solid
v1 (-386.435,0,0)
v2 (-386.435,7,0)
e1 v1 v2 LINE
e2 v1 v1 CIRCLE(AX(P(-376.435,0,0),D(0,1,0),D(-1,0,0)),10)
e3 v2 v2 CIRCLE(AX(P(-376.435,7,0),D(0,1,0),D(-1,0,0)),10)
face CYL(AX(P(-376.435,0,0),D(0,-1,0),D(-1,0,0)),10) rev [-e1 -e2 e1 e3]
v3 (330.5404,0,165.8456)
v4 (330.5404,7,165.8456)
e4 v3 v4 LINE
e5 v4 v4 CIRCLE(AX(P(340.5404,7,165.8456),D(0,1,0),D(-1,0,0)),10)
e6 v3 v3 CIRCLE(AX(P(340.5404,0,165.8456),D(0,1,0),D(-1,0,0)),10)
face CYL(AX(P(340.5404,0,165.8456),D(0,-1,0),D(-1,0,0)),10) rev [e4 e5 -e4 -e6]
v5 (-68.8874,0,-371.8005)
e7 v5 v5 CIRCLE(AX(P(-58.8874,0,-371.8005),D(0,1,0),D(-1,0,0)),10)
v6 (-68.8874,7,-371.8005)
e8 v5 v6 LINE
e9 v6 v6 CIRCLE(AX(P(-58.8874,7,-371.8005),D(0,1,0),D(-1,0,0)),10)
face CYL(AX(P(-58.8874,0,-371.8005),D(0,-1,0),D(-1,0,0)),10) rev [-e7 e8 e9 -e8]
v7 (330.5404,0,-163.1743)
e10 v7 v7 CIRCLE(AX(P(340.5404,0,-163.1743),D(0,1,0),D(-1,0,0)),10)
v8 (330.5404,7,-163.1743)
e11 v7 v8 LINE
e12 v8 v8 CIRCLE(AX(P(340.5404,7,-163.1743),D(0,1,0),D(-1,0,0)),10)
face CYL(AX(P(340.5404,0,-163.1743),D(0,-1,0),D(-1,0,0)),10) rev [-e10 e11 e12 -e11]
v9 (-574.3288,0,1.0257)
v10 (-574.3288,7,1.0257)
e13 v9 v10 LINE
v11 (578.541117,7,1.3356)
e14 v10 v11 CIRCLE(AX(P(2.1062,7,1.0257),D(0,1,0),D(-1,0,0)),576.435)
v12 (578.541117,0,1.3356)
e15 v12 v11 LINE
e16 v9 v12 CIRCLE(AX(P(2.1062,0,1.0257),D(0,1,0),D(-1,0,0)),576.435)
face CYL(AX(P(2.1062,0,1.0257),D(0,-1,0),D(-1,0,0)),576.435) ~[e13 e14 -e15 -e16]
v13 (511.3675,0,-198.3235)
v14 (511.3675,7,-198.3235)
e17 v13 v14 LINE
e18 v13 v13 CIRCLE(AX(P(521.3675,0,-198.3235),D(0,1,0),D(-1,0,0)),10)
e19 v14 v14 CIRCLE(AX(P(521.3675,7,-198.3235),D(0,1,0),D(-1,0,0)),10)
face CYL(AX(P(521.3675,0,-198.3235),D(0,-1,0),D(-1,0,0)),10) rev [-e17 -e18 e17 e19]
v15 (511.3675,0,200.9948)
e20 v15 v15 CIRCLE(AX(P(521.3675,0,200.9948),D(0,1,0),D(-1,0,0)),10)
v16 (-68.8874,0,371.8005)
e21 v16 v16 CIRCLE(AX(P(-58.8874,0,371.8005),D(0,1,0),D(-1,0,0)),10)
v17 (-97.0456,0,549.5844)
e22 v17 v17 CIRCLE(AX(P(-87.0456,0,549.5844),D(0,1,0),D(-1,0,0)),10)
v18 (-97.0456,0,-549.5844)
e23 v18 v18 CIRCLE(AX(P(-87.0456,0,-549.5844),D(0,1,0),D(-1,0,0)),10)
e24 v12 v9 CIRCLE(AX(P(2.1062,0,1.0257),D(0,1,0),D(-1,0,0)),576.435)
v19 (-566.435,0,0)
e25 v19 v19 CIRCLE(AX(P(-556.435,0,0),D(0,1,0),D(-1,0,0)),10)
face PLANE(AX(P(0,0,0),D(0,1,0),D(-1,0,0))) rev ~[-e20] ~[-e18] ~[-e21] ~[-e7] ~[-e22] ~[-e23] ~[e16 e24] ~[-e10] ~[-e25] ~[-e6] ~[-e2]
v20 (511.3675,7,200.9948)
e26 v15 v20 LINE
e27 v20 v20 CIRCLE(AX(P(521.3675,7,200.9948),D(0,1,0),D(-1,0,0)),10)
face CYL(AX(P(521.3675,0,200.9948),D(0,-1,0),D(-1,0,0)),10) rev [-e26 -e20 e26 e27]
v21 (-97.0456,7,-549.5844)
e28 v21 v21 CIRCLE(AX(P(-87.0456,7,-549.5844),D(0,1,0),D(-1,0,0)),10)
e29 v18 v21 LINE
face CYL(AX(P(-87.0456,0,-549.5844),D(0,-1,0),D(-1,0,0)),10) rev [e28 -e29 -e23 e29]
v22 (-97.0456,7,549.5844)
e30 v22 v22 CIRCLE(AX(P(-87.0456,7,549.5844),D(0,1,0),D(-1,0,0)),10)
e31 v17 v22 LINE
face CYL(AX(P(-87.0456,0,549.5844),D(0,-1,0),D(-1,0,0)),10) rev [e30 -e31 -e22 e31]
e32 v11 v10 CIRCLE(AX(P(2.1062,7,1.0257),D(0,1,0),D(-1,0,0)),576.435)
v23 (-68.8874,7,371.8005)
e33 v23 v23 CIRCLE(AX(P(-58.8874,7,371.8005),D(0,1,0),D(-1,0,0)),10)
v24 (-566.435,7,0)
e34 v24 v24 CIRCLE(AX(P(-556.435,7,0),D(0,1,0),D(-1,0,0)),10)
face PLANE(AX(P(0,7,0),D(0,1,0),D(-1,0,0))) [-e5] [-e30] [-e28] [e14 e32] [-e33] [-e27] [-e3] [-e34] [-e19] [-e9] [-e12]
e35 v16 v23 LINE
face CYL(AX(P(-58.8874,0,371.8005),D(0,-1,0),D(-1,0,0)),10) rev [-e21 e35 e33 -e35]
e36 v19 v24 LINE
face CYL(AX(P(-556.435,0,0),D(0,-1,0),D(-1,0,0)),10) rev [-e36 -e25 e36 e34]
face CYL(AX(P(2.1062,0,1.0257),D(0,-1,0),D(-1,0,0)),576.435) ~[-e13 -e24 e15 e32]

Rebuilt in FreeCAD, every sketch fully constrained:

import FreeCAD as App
import Part
import Sketcher

doc = App.newDocument("Part")
body = doc.addObject("PartDesign::Body", "Body")

sketch1 = body.newObject("Sketcher::SketchObject", "Sketch")
sketch1.AttachmentSupport = (doc.getObject("XZ_Plane"), [""])
sketch1.MapMode = "FlatFace"
sketch1.addGeometry(Part.Circle(App.Vector(2, 1, 0), App.Vector(0, 0, 1), 576), False)
sketch1.addGeometry(Part.Circle(App.Vector(521, -198, 0), App.Vector(0, 0, 1), 10), False)
sketch1.addGeometry(Part.Circle(App.Vector(341, -163, 0), App.Vector(0, 0, 1), 10), False)
sketch1.addGeometry(Part.Circle(App.Vector(-87, -550, 0), App.Vector(0, 0, 1), 10), False)
sketch1.addGeometry(Part.Circle(App.Vector(-59, -372, 0), App.Vector(0, 0, 1), 10), False)
sketch1.addGeometry(Part.Circle(App.Vector(-376, 0, 0), App.Vector(0, 0, 1), 10), False)
sketch1.addGeometry(Part.Circle(App.Vector(-556, 0, 0), App.Vector(0, 0, 1), 10), False)
sketch1.addGeometry(Part.Circle(App.Vector(521, 201, 0), App.Vector(0, 0, 1), 10), False)
sketch1.addGeometry(Part.Circle(App.Vector(341, 166, 0), App.Vector(0, 0, 1), 10), False)
sketch1.addGeometry(Part.Circle(App.Vector(-59, 372, 0), App.Vector(0, 0, 1), 10), False)
sketch1.addGeometry(Part.Circle(App.Vector(-87, 550, 0), App.Vector(0, 0, 1), 10), False)
sketch1.addConstraint(Sketcher.Constraint("Equal", 1, 2))
sketch1.addConstraint(Sketcher.Constraint("Equal", 2, 3))
sketch1.addConstraint(Sketcher.Constraint("Equal", 3, 4))
sketch1.addConstraint(Sketcher.Constraint("Equal", 4, 5))
sketch1.addConstraint(Sketcher.Constraint("Equal", 5, 6))
sketch1.addConstraint(Sketcher.Constraint("Equal", 6, 7))
sketch1.addConstraint(Sketcher.Constraint("Equal", 7, 8))
sketch1.addConstraint(Sketcher.Constraint("Equal", 8, 9))
sketch1.addConstraint(Sketcher.Constraint("Equal", 9, 10))
sketch1.addConstraint(Sketcher.Constraint("Symmetric", 4, 3, 9, 3, -1))
sketch1.addConstraint(Sketcher.Constraint("Symmetric", 3, 3, 10, 3, -1))
sketch1.addConstraint(Sketcher.Constraint("PointOnObject", 5, 3, -1))
sketch1.addConstraint(Sketcher.Constraint("PointOnObject", 6, 3, -1))
sketch1.addConstraint(Sketcher.Constraint("Vertical", 1, 3, 7, 3))
sketch1.addConstraint(Sketcher.Constraint("Vertical", 2, 3, 8, 3))
sketch1.addConstraint(Sketcher.Constraint("Diameter", 1, 20.0))
sketch1.addConstraint(Sketcher.Constraint("Diameter", 0, 1152.87))
sketch1.addConstraint(Sketcher.Constraint("DistanceX", 5, 3, -1, 1, 376.435))
sketch1.addConstraint(Sketcher.Constraint("DistanceX", 6, 3, -1, 1, 556.435))
sketch1.addConstraint(Sketcher.Constraint("DistanceY", 2, 3, 0, 3, 164.2))
sketch1.addConstraint(Sketcher.Constraint("DistanceY", 3, 3, 0, 3, 550.61))
sketch1.addConstraint(Sketcher.Constraint("DistanceY", 2, 3, 8, 3, 329.02))
sketch1.addConstraint(Sketcher.Constraint("DistanceX", 2, 3, 1, 3, 180.827))
sketch1.addConstraint(Sketcher.Constraint("DistanceX", 3, 3, 2, 3, 427.586))
sketch1.addConstraint(Sketcher.Constraint("DistanceY", 3, 3, 1, 3, 351.261))
sketch1.addConstraint(Sketcher.Constraint("DistanceY", 3, 3, 4, 3, 177.784))
sketch1.addConstraint(Sketcher.Constraint("DistanceX", 4, 3, 1, 3, 580.255))
sketch1.addConstraint(Sketcher.Constraint("DistanceY", 2, 3, 7, 3, 364.169))
sketch1.addConstraint(Sketcher.Constraint("DistanceY", 8, 3, 9, 3, 205.955))
sketch1.addConstraint(Sketcher.Constraint("DistanceX", -1, 1, 0, 3, 2.1062))
sketch1.addConstraint(Sketcher.Constraint("DistanceX", -1, 1, 1, 3, 521.3675))
pad1 = body.newObject("PartDesign::Pad", "Pad")
pad1.Profile = sketch1
pad1.Length = 7
pad1.Reversed = True

doc.recompute()
